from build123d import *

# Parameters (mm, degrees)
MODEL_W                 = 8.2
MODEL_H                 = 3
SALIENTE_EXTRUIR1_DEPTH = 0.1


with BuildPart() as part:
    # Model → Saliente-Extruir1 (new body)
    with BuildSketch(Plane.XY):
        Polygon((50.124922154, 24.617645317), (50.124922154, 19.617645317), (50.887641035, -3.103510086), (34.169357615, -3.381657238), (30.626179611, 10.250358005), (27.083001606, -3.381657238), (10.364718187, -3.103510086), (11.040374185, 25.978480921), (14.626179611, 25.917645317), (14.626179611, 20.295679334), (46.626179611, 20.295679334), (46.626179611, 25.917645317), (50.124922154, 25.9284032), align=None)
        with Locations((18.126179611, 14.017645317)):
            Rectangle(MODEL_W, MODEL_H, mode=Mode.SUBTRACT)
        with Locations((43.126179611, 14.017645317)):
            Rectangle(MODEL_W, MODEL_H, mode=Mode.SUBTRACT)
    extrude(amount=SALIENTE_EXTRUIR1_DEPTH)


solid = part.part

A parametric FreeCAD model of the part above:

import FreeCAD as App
import Part
import Sketcher

doc = App.newDocument("Part")
body = doc.addObject("PartDesign::Body", "Body")

sketch1 = body.newObject("Sketcher::SketchObject", "Sketch")
sketch1.AttachmentSupport = (doc.getObject("XY_Plane"), [""])
sketch1.MapMode = "FlatFace"
sketch1.addGeometry([
    Part.LineSegment(App.Vector(50.1, 19.6, 0), App.Vector(50.1, 25.9, 0)),
    Part.LineSegment(App.Vector(50.1, 25.9, 0), App.Vector(46.6, 25.9, 0)),
    Part.LineSegment(App.Vector(46.6, 25.9, 0), App.Vector(46.6, 20.3, 0)),
    Part.LineSegment(App.Vector(46.6, 20.3, 0), App.Vector(14.6, 20.3, 0)),
    Part.LineSegment(App.Vector(14.6, 20.3, 0), App.Vector(14.6, 25.9, 0)),
    Part.LineSegment(App.Vector(14.6, 25.9, 0), App.Vector(11, 26, 0)),
    Part.LineSegment(App.Vector(11, 26, 0), App.Vector(10.4, -3.1, 0)),
    Part.LineSegment(App.Vector(10.4, -3.1, 0), App.Vector(27.1, -3.4, 0)),
    Part.LineSegment(App.Vector(27.1, -3.4, 0), App.Vector(30.6, 10.3, 0)),
    Part.LineSegment(App.Vector(30.6, 10.3, 0), App.Vector(34.2, -3.4, 0)),
    Part.LineSegment(App.Vector(34.2, -3.4, 0), App.Vector(50.9, -3.1, 0)),
    Part.LineSegment(App.Vector(50.9, -3.1, 0), App.Vector(50.1, 19.6, 0)),
    Part.LineSegment(App.Vector(39, 12.5, 0), App.Vector(39, 15.5, 0)),
    Part.LineSegment(App.Vector(39, 15.5, 0), App.Vector(47.2, 15.5, 0)),
    Part.LineSegment(App.Vector(47.2, 15.5, 0), App.Vector(47.2, 12.5, 0)),
    Part.LineSegment(App.Vector(47.2, 12.5, 0), App.Vector(39, 12.5, 0)),
    Part.LineSegment(App.Vector(14, 12.5, 0), App.Vector(14, 15.5, 0)),
    Part.LineSegment(App.Vector(14, 15.5, 0), App.Vector(22.2, 15.5, 0)),
    Part.LineSegment(App.Vector(22.2, 15.5, 0), App.Vector(22.2, 12.5, 0)),
    Part.LineSegment(App.Vector(22.2, 12.5, 0), App.Vector(14, 12.5, 0)),
], False)
sketch1.addConstraint([
    Sketcher.Constraint("Coincident", 0, 2, 1, 1),
    Sketcher.Constraint("Coincident", 1, 2, 2, 1),
    Sketcher.Constraint("Coincident", 2, 2, 3, 1),
    Sketcher.Constraint("Coincident", 3, 2, 4, 1),
    Sketcher.Constraint("Coincident", 4, 2, 5, 1),
    Sketcher.Constraint("Coincident", 5, 2, 6, 1),
    Sketcher.Constraint("Coincident", 6, 2, 7, 1),
    Sketcher.Constraint("Coincident", 7, 2, 8, 1),
    Sketcher.Constraint("Coincident", 8, 2, 9, 1),
    Sketcher.Constraint("Coincident", 9, 2, 10, 1),
    Sketcher.Constraint("Coincident", 10, 2, 11, 1),
    Sketcher.Constraint("Coincident", 11, 2, 0, 1),
    Sketcher.Constraint("Coincident", 12, 2, 13, 1),
    Sketcher.Constraint("Coincident", 13, 2, 14, 1),
    Sketcher.Constraint("Coincident", 14, 2, 15, 1),
    Sketcher.Constraint("Coincident", 15, 2, 12, 1),
    Sketcher.Constraint("Coincident", 16, 2, 17, 1),
    Sketcher.Constraint("Coincident", 17, 2, 18, 1),
    Sketcher.Constraint("Coincident", 18, 2, 19, 1),
    Sketcher.Constraint("Coincident", 19, 2, 16, 1),
    Sketcher.Constraint("Vertical", 0),
    Sketcher.Constraint("Vertical", 2),
    Sketcher.Constraint("Horizontal", 3),
    Sketcher.Constraint("Vertical", 4),
    Sketcher.Constraint("Vertical", 12),
    Sketcher.Constraint("Horizontal", 13),
    Sketcher.Constraint("Vertical", 14),
    Sketcher.Constraint("Horizontal", 15),
    Sketcher.Constraint("Vertical", 16),
    Sketcher.Constraint("Horizontal", 17),
    Sketcher.Constraint("Vertical", 18),
    Sketcher.Constraint("Horizontal", 19),
    Sketcher.Constraint("Horizontal", 1, 2, 4, 2),
    Sketcher.Constraint("Horizontal", 7, 2, 9, 2),
    Sketcher.Constraint("Horizontal", 6, 2, 10, 2),
    Sketcher.Constraint("Horizontal", 13, 2, 16, 2),
    Sketcher.Constraint("Horizontal", 15, 2, 18, 2),
    Sketcher.Constraint("Equal", 15, 17),
    Sketcher.Constraint("Equal", 8, 9),
    Sketcher.Constraint("Equal", 7, 10),
    Sketcher.Constraint("DistanceX", 3, 2, 3, 1, 32.0),
    Sketcher.Constraint("DistanceY", 12, 1, 12, 2, 3.0),
    Sketcher.Constraint("DistanceX", 13, 1, 13, 2, 8.2),
    Sketcher.Constraint("DistanceX", 8, 2, 2, 2, 16.0),
    Sketcher.Constraint("DistanceY", 11, 2, 1, 2, 6.3),
    Sketcher.Constraint("DistanceX", 12, 2, 2, 2, 7.6),
    Sketcher.Constraint("DistanceY", 12, 2, 11, 2, 4.1),
    Sketcher.Constraint("DistanceX", 16, 2, 3, 2, 0.6),
    Sketcher.Constraint("DistanceX", -1, 1, 7, 2, 27.083002),
    Sketcher.Constraint("DistanceY", 3, 2, 5, 2, 5.682802),
    Sketcher.Constraint("Distance", 1, 3.498759),
    Sketcher.Constraint("Distance", 5, 3.586321),
    Sketcher.Constraint("Distance", 6, 29.089839),
    Sketcher.Constraint("DistanceY", 0, 1, 0, 2, 6.310758),
    Sketcher.Constraint("DistanceY", 2, 2, 2, 1, 5.621966),
    Sketcher.Constraint("DistanceX", -1, 1, 1, 2, 46.62618),
    Sketcher.Constraint("DistanceY", -1, 1, 2, 2, 20.295679),
    Sketcher.Constraint("DistanceX", -1, 1, 6, 2, 10.364718),
    Sketcher.Constraint("DistanceY", -1, 1, 8, 2, 10.250358),
    Sketcher.Constraint("DistanceY", 7, 2, 5, 2, 29.360138),
])
pad1 = body.newObject("PartDesign::Pad", "Pad")
pad1.Profile = sketch1
pad1.Length = 0.1

doc.recompute()
